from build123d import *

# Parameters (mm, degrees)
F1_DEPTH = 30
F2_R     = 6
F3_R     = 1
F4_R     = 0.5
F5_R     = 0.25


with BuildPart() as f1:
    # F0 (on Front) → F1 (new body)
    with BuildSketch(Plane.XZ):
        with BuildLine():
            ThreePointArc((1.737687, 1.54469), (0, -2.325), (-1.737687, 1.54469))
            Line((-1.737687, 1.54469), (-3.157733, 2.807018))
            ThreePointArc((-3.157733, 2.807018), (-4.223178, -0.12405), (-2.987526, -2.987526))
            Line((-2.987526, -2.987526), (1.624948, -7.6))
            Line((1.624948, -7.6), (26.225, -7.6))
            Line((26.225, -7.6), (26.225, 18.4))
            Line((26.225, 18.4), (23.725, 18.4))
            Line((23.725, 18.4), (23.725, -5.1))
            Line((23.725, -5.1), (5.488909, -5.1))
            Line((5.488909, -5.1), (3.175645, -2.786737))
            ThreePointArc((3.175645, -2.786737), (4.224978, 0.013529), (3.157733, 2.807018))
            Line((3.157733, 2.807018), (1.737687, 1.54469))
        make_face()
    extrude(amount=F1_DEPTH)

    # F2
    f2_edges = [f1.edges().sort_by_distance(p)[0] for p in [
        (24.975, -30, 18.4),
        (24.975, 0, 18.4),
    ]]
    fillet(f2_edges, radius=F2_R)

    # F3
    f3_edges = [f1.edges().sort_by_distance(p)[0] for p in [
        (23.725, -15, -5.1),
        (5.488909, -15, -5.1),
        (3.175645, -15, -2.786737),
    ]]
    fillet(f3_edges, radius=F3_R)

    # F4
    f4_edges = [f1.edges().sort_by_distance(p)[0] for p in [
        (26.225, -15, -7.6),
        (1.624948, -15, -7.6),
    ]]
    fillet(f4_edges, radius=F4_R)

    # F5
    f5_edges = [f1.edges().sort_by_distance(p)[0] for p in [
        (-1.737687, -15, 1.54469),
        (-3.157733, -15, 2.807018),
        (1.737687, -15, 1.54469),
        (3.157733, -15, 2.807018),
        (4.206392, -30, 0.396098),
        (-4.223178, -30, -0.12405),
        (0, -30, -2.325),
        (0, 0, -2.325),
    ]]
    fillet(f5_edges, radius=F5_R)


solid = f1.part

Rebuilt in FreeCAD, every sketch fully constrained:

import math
import FreeCAD as App
import Part
import Sketcher
Q = App.Units.Quantity


def edges_at(feature, points):
    """Names of the edges that pass closest to the given points."""
    edges = feature.Shape.Edges
    near = lambda p: min(range(len(edges)), key=lambda i: edges[i].distToShape(Part.Vertex(*p))[0])
    return sorted({f"Edge{near(p) + 1}" for p in points})

doc = App.newDocument("Part")
body = doc.addObject("PartDesign::Body", "Body")

# Sketch on XZ plane
sketch1 = body.newObject("Sketcher::SketchObject", "Sketch")
sketch1.AttachmentSupport = (doc.getObject("XZ_Plane"), [""])
sketch1.MapMode = "FlatFace"
sketch1.addGeometry(Part.ArcOfCircle(Part.Circle(App.Vector(0, 0, 0), App.Vector(0, 0, 1), 2.3), math.radians(138), math.radians(402)), False)
sketch1.addGeometry(Part.LineSegment(App.Vector(-1.7, 1.5, 0), App.Vector(-3.2, 2.8, 0)), False)
sketch1.addGeometry(Part.ArcOfCircle(Part.Circle(App.Vector(0, 0, 0), App.Vector(0, 0, 1), 4.2), math.radians(138), math.radians(225)), False)
sketch1.addGeometry(Part.LineSegment(App.Vector(-3, -3, 0), App.Vector(1.6, -7.6, 0)), False)
sketch1.addGeometry(Part.LineSegment(App.Vector(1.6, -7.6, 0), App.Vector(26.2, -7.6, 0)), False)
sketch1.addGeometry(Part.LineSegment(App.Vector(26.2, -7.6, 0), App.Vector(26.2, 18.4, 0)), False)
sketch1.addGeometry(Part.LineSegment(App.Vector(26.2, 18.4, 0), App.Vector(23.7, 18.4, 0)), False)
sketch1.addGeometry(Part.LineSegment(App.Vector(23.7, 18.4, 0), App.Vector(23.7, -5.1, 0)), False)
sketch1.addGeometry(Part.LineSegment(App.Vector(23.7, -5.1, 0), App.Vector(5.5, -5.1, 0)), False)
sketch1.addGeometry(Part.LineSegment(App.Vector(5.5, -5.1, 0), App.Vector(3.2, -2.8, 0)), False)
sketch1.addGeometry(Part.ArcOfCircle(Part.Circle(App.Vector(0, 0, 0), App.Vector(0, 0, 1), 4.2), math.radians(-41), math.radians(42)), False)
sketch1.addGeometry(Part.LineSegment(App.Vector(3.2, 2.8, 0), App.Vector(1.7, 1.5, 0)), False)
sketch1.addConstraint(Sketcher.Constraint("Coincident", 0, 1, 1, 1))
sketch1.addConstraint(Sketcher.Constraint("Coincident", 1, 2, 2, 1))
sketch1.addConstraint(Sketcher.Constraint("Tangent", 2, 2, 3, 1))
sketch1.addConstraint(Sketcher.Constraint("Coincident", 3, 2, 4, 1))
sketch1.addConstraint(Sketcher.Constraint("Coincident", 4, 2, 5, 1))
sketch1.addConstraint(Sketcher.Constraint("Coincident", 5, 2, 6, 1))
sketch1.addConstraint(Sketcher.Constraint("Coincident", 6, 2, 7, 1))
sketch1.addConstraint(Sketcher.Constraint("Coincident", 7, 2, 8, 1))
sketch1.addConstraint(Sketcher.Constraint("Coincident", 8, 2, 9, 1))
sketch1.addConstraint(Sketcher.Constraint("Coincident", 9, 2, 10, 1))
sketch1.addConstraint(Sketcher.Constraint("Coincident", 10, 2, 11, 1))
sketch1.addConstraint(Sketcher.Constraint("Coincident", 11, 2, 0, 2))
sketch1.addConstraint(Sketcher.Constraint("Horizontal", 4))
sketch1.addConstraint(Sketcher.Constraint("Vertical", 5))
sketch1.addConstraint(Sketcher.Constraint("Horizontal", 6))
sketch1.addConstraint(Sketcher.Constraint("Vertical", 7))
sketch1.addConstraint(Sketcher.Constraint("Horizontal", 8))
sketch1.addConstraint(Sketcher.Constraint("Coincident", 0, 3, -1, 1))
sketch1.addConstraint(Sketcher.Constraint("Coincident", 2, 3, -1, 1))
sketch1.addConstraint(Sketcher.Constraint("Coincident", 10, 3, -1, 1))
sketch1.addConstraint(Sketcher.Constraint("Equal", 2, 10))
sketch1.addConstraint(Sketcher.Constraint("Parallel", 3, 9))
sketch1.addConstraint(Sketcher.Constraint("Horizontal", 1, 2, 10, 2))
sketch1.addConstraint(Sketcher.Constraint("Horizontal", 0, 1, 11, 2))
sketch1.addConstraint(Sketcher.Constraint("DistanceY", 5, 1, 5, 2, 26.0))
sketch1.addConstraint(Sketcher.Constraint("Angle", 3, Q("-45 deg")))
sketch1.addConstraint(Sketcher.Constraint("DistanceX", 6, 2, 6, 1, 2.5))
sketch1.addConstraint(Sketcher.Constraint("DistanceY", 7, 2, 7, 1, 23.5))
sketch1.addConstraint(Sketcher.Constraint("Radius", 0, 2.325))
sketch1.addConstraint(Sketcher.Constraint("Radius", 2, 4.225002))
sketch1.addConstraint(Sketcher.Constraint("DistanceY", 3, 2, -1, 1, 7.6))
sketch1.addConstraint(Sketcher.Constraint("DistanceX", -1, 1, 4, 2, 26.225))
sketch1.addConstraint(Sketcher.Constraint("DistanceX", 8, 2, 8, 1, 18.236091))
sketch1.addConstraint(Sketcher.Constraint("DistanceY", -1, 1, 0, 1, 1.54469))
sketch1.addConstraint(Sketcher.Constraint("DistanceY", -1, 1, 10, 2, 2.807018))
pad1 = body.newObject("PartDesign::Pad", "Pad")
pad1.Profile = sketch1
pad1.Length = 30
doc.recompute()

fillet = body.newObject("PartDesign::Fillet", "Fillet")
fillet.Base = (pad1, edges_at(pad1, [(24.975, -30, 18.4), (24.975, 0, 18.4)]))
fillet.Radius = 6
doc.recompute()

fillet2 = body.newObject("PartDesign::Fillet", "Fillet001")
fillet2.Base = (fillet, edges_at(fillet, [(23.725, -15, -5.1), (5.489, -15, -5.1), (3.176, -15, -2.787)]))
fillet2.Radius = 1
doc.recompute()

fillet3 = body.newObject("PartDesign::Fillet", "Fillet002")
fillet3.Base = (fillet2, edges_at(fillet2, [(26.225, -15, -7.6), (1.625, -15, -7.6)]))
fillet3.Radius = 0.5
doc.recompute()

fillet4 = body.newObject("PartDesign::Fillet", "Fillet003")
fillet4.Base = (fillet3, edges_at(fillet3, [
    (-1.738, -15, 1.545),
    (-3.158, -15, 2.807),
    (1.738, -15, 1.545),
    (3.158, -15, 2.807),
    (4.206, -30, 0.396),
    (-4.223, -30, -0.124),
    (0, -30, -2.325),
    (0, 0, -2.325),
]))
fillet4.Radius = 0.25

doc.recompute()
